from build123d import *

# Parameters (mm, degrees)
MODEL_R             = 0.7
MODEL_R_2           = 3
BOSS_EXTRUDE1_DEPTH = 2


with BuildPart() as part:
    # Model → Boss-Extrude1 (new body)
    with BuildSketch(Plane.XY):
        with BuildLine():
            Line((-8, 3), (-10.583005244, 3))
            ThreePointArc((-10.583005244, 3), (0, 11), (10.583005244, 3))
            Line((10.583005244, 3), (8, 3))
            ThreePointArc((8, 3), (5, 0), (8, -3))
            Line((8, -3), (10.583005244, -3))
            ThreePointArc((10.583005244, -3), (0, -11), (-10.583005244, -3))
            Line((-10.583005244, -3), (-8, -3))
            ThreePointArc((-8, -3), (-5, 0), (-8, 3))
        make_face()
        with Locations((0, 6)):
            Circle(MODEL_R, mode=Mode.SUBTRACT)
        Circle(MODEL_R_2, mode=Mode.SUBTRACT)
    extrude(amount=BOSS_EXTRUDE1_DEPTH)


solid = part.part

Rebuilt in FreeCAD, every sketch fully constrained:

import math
import FreeCAD as App
import Part
import Sketcher
from FreeCAD import Vector

doc = App.newDocument("Part")
body = doc.addObject("PartDesign::Body", "Body")

sketch1 = body.newObject("Sketcher::SketchObject", "Sketch")
sketch1.AttachmentSupport = (doc.getObject("XY_Plane"), [""])
sketch1.MapMode = "FlatFace"
sketch1.addGeometry([
    Part.LineSegment(Vector(-10.583005, 3, 0), Vector(-8, 3, 0)),
    Part.ArcOfCircle(Part.Circle(Vector(-8, 0, 0), Vector(0, 0, 1), 3), math.radians(-90), math.radians(90)),
    Part.LineSegment(Vector(-8, -3, 0), Vector(-10.583005, -3, 0)),
    Part.ArcOfCircle(Part.Circle(Vector(0, 0, 0), Vector(0, 0, 1), 11), math.radians(-164.17338), math.radians(-15.82662)),
    Part.LineSegment(Vector(10.583005, -3, 0), Vector(8, -3, 0)),
    Part.ArcOfCircle(Part.Circle(Vector(8, 0, 0), Vector(0, 0, 1), 3), math.radians(90), math.radians(270)),
    Part.LineSegment(Vector(8, 3, 0), Vector(10.583005, 3, 0)),
    Part.ArcOfCircle(Part.Circle(Vector(0, 0, 0), Vector(0, 0, 1), 11), math.radians(15.82662), math.radians(164.17338)),
    Part.Circle(Vector(0, 0, 0), Vector(0, 0, 1), 3),
    Part.Circle(Vector(0, 6, 0), Vector(0, 0, 1), 0.7),
], False)
sketch1.addConstraint([
    Sketcher.Constraint("Tangent", 0, 2, 1, 2),
    Sketcher.Constraint("Tangent", 1, 1, 2, 1),
    Sketcher.Constraint("Coincident", 2, 2, 3, 1),
    Sketcher.Constraint("Coincident", 3, 2, 4, 1),
    Sketcher.Constraint("Tangent", 4, 2, 5, 2),
    Sketcher.Constraint("Tangent", 5, 1, 6, 1),
    Sketcher.Constraint("Coincident", 6, 2, 7, 1),
    Sketcher.Constraint("Coincident", 7, 2, 0, 1),
    Sketcher.Constraint("Horizontal", 0),
    Sketcher.Constraint("Horizontal", 2),
    Sketcher.Constraint("Horizontal", 4),
    Sketcher.Constraint("Horizontal", 6),
    Sketcher.Constraint("Coincident", 3, 3, -1, 1),
    Sketcher.Constraint("Coincident", 7, 3, -1, 1),
    Sketcher.Constraint("Coincident", 8, 3, -1, 1),
    Sketcher.Constraint("Equal", 1, 5),
    Sketcher.Constraint("Equal", 3, 7),
    Sketcher.Constraint("Equal", 5, 8),
    Sketcher.Constraint("Symmetric", 1, 3, 5, 3, -1, 1),
    Sketcher.Constraint("PointOnObject", 1, 3, -1),
    Sketcher.Constraint("PointOnObject", 9, 3, -2),
    Sketcher.Constraint("Diameter", 8, 6.0),
    Sketcher.Constraint("Radius", 3, 11.0),
    Sketcher.Constraint("Diameter", 9, 1.4),
    Sketcher.Constraint("DistanceX", 1, 3, -1, 1, 8.0),
    Sketcher.Constraint("DistanceY", -1, 1, 9, 3, 6.0),
])
pad1 = body.newObject("PartDesign::Pad", "Pad")
pad1.Profile = sketch1
pad1.Length = 2

doc.recompute()
